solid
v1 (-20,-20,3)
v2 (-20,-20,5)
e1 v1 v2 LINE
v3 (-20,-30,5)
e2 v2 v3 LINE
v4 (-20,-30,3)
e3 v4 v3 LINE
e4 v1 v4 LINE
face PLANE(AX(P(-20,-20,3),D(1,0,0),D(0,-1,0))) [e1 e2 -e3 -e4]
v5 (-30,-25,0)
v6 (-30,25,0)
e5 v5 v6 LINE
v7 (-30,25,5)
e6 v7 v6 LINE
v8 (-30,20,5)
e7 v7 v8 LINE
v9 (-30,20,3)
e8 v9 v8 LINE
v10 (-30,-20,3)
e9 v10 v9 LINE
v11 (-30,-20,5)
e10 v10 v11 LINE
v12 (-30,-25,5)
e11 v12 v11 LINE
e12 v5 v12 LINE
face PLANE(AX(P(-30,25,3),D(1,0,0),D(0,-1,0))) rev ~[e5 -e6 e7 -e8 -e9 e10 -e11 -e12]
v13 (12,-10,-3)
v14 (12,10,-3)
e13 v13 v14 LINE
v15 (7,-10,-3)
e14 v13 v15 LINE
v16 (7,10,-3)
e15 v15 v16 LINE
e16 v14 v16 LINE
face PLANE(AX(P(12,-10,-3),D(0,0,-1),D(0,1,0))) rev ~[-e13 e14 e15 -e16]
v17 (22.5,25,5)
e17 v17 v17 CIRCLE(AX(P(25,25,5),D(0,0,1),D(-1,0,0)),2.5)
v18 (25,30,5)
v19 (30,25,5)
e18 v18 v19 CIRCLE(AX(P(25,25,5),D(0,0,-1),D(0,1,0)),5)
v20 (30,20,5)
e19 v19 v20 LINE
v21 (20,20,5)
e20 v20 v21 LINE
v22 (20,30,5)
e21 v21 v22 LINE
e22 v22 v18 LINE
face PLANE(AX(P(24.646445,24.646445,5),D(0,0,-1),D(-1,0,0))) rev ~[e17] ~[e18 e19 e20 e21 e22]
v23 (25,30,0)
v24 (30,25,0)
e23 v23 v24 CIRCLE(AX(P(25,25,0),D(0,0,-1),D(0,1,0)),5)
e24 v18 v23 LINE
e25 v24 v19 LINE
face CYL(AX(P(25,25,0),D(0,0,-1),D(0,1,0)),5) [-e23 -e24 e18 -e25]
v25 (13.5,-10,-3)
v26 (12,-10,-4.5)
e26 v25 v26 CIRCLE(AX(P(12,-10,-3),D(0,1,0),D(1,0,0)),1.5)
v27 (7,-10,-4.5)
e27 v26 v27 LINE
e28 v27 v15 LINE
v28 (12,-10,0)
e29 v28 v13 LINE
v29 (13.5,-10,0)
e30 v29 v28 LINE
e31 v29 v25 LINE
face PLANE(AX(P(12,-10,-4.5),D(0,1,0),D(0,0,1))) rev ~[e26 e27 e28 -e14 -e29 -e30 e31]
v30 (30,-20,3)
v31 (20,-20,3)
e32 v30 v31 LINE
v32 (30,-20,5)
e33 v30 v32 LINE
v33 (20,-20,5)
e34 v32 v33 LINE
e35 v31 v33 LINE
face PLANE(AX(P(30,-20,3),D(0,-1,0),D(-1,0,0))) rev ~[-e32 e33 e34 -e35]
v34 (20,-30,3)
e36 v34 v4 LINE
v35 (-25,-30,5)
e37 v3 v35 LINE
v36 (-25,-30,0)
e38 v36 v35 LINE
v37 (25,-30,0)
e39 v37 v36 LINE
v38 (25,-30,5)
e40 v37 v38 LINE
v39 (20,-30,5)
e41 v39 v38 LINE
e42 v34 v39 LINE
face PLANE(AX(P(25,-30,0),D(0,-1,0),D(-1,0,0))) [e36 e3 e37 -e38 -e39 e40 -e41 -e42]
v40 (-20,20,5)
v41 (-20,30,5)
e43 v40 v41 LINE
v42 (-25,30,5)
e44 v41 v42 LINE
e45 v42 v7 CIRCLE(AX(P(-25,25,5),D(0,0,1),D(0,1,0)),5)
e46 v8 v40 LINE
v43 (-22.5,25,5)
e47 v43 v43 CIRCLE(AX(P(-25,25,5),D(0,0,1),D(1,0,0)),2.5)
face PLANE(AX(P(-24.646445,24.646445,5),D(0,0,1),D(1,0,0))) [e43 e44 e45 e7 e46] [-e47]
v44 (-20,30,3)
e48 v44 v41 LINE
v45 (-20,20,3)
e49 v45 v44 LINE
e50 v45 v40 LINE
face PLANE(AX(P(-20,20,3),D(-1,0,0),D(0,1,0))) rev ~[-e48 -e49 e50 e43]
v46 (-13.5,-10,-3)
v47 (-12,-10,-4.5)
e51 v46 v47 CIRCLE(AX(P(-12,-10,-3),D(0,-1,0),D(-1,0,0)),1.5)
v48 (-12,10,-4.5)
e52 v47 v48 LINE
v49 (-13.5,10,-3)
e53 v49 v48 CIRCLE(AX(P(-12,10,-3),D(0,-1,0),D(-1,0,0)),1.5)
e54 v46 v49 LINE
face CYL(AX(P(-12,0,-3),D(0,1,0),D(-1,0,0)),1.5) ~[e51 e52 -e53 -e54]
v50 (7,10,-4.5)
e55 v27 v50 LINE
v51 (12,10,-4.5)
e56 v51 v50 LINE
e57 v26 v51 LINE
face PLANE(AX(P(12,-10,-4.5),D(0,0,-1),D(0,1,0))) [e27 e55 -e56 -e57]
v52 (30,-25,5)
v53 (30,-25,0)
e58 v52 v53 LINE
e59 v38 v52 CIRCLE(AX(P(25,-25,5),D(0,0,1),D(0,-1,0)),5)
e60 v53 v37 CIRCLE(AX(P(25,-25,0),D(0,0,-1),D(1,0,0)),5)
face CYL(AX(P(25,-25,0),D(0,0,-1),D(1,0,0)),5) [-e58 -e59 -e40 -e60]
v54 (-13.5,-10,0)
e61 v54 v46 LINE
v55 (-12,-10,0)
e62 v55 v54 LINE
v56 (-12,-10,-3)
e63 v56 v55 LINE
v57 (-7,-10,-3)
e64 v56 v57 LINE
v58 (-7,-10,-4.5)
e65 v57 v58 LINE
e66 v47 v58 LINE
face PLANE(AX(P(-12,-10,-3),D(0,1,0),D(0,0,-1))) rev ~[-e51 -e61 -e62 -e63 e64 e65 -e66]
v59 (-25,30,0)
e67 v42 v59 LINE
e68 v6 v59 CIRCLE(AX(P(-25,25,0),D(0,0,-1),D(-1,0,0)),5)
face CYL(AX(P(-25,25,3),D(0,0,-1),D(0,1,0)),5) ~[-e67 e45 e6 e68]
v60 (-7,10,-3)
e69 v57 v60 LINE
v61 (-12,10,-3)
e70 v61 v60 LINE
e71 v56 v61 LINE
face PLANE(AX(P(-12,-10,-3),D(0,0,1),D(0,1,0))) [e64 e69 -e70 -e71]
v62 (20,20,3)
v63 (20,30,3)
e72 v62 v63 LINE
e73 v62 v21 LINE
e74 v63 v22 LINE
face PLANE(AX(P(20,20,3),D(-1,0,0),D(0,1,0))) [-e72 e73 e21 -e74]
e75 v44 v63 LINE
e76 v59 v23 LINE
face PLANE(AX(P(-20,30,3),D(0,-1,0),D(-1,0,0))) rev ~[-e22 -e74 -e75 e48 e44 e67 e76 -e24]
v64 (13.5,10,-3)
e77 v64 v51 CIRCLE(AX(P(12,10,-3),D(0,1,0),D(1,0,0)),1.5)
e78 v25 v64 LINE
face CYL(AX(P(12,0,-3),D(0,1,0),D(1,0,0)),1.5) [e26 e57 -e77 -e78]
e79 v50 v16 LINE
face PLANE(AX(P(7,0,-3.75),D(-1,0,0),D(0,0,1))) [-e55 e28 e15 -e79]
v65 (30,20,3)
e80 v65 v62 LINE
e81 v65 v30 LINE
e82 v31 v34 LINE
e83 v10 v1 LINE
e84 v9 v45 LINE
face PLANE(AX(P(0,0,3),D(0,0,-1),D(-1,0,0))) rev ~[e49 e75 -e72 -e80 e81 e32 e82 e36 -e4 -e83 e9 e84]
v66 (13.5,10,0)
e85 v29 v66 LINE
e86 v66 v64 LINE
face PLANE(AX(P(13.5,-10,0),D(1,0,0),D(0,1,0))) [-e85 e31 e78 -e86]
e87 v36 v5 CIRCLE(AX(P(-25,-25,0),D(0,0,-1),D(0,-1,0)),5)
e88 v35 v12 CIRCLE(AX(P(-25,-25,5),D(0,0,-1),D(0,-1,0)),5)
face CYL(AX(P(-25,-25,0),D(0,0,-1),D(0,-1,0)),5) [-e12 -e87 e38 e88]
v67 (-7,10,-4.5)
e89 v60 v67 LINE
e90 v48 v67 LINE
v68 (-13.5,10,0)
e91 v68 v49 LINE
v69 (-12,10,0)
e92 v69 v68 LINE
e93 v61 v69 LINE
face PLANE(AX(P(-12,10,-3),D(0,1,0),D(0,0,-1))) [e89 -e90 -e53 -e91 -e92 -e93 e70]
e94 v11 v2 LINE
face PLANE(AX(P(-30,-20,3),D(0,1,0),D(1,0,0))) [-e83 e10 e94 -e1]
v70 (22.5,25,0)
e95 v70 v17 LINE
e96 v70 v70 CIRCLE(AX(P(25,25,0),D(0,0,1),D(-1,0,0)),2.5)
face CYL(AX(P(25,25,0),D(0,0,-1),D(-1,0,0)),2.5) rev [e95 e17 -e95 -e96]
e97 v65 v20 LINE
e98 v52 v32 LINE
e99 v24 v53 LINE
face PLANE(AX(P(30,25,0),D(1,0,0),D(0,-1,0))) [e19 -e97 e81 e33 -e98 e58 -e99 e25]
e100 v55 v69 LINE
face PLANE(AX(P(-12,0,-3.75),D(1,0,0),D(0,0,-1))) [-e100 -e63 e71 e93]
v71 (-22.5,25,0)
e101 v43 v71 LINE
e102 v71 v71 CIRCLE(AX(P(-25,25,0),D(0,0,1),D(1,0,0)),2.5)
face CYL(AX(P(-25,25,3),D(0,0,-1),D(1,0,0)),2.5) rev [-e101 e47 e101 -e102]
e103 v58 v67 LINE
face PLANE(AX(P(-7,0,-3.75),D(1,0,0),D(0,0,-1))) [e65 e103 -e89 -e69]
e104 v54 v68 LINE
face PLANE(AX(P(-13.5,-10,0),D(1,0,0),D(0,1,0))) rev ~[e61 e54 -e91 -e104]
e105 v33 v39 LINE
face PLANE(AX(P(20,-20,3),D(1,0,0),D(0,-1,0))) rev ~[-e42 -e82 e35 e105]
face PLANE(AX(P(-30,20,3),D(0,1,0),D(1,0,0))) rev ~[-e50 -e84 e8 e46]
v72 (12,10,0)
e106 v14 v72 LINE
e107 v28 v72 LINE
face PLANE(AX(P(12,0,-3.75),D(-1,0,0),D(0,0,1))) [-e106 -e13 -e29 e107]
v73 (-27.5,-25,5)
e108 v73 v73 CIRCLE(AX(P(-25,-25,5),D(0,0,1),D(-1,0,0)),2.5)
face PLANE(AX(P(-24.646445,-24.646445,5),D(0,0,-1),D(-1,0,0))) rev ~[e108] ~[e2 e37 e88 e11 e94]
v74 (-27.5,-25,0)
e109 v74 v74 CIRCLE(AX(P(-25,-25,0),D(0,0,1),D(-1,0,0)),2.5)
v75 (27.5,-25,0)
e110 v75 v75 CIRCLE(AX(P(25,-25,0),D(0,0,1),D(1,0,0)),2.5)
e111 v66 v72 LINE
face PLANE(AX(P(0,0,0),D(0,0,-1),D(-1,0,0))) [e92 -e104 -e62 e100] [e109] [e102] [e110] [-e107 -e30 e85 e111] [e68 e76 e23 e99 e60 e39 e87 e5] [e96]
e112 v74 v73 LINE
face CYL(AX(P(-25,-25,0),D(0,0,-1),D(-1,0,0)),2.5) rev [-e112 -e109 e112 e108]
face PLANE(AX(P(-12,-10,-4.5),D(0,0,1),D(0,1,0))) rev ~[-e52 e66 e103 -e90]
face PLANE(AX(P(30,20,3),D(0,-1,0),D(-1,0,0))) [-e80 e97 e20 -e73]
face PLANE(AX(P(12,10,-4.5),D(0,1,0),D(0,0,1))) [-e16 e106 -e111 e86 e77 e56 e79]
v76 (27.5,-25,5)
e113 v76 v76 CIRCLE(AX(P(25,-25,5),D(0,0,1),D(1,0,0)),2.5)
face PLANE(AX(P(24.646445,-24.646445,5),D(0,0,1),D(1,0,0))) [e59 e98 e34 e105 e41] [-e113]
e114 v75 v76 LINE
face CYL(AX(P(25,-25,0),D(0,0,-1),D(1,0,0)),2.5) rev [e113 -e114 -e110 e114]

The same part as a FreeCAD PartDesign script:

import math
import FreeCAD as App
import Part
import Sketcher
Q = App.Units.Quantity


def add_polygon(sketch, points):
    """Adds a closed chain of lines whose ends are joined by coincident constraints."""
    first, n = sketch.GeometryCount, len(points)
    for a, b in zip(points, points[1:] + points[:1]):
        sketch.addGeometry(Part.LineSegment(App.Vector(*a, 0), App.Vector(*b, 0)), False)
    for i in range(n):
        sketch.addConstraint(Sketcher.Constraint("Coincident", first + i, 2, first + (i + 1) % n, 1))

doc = App.newDocument("Part")
body = doc.addObject("PartDesign::Body", "Body")

sketch1 = doc.addObject("Sketcher::SketchObject", "Sketch")
body.addObject(sketch1)
sketch1.AttachmentSupport = (doc.XY_Plane, [""])
sketch1.MapMode = "FlatFace"
sketch1.addGeometry([
    Part.LineSegment(App.Vector(25, 30, 0), App.Vector(-25, 30, 0)),
    Part.ArcOfCircle(Part.Circle(App.Vector(-25, 25, 0), App.Vector(0, 0, 1), 5), math.radians(90), math.radians(180)),
    Part.LineSegment(App.Vector(-30, 25, 0), App.Vector(-30, -25, 0)),
    Part.ArcOfCircle(Part.Circle(App.Vector(-25, -25, 0), App.Vector(0, 0, 1), 5), math.radians(180), math.radians(270)),
    Part.LineSegment(App.Vector(-25, -30, 0), App.Vector(25, -30, 0)),
    Part.ArcOfCircle(Part.Circle(App.Vector(25, -25, 0), App.Vector(0, 0, 1), 5), math.radians(-90), math.radians(0)),
    Part.LineSegment(App.Vector(30, -25, 0), App.Vector(30, 25, 0)),
    Part.ArcOfCircle(Part.Circle(App.Vector(25, 25, 0), App.Vector(0, 0, 1), 5), math.radians(0), math.radians(90)),
    Part.Circle(App.Vector(25, -25, 0), App.Vector(0, 0, 1), 2.5),
    Part.Circle(App.Vector(-25, -25, 0), App.Vector(0, 0, 1), 2.5),
    Part.Circle(App.Vector(25, 25, 0), App.Vector(0, 0, 1), 2.5),
    Part.Circle(App.Vector(-25, 25, 0), App.Vector(0, 0, 1), 2.5),
], False)
sketch1.addConstraint([
    Sketcher.Constraint("Tangent", 0, 2, 1, 1),
    Sketcher.Constraint("Tangent", 1, 2, 2, 1),
    Sketcher.Constraint("Tangent", 2, 2, 3, 1),
    Sketcher.Constraint("Tangent", 3, 2, 4, 1),
    Sketcher.Constraint("Tangent", 4, 2, 5, 1),
    Sketcher.Constraint("Tangent", 5, 2, 6, 1),
    Sketcher.Constraint("Tangent", 6, 2, 7, 1),
    Sketcher.Constraint("Tangent", 7, 2, 0, 1),
    Sketcher.Constraint("Horizontal", 0),
    Sketcher.Constraint("Vertical", 2),
    Sketcher.Constraint("Horizontal", 4),
    Sketcher.Constraint("Vertical", 6),
    Sketcher.Constraint("Coincident", 8, 3, 5, 3),
    Sketcher.Constraint("Coincident", 9, 3, 3, 3),
    Sketcher.Constraint("Coincident", 10, 3, 7, 3),
    Sketcher.Constraint("Coincident", 11, 3, 1, 3),
    Sketcher.Constraint("Equal", 1, 3),
    Sketcher.Constraint("Equal", 3, 5),
    Sketcher.Constraint("Equal", 5, 7),
    Sketcher.Constraint("Equal", 8, 9),
    Sketcher.Constraint("Equal", 9, 10),
    Sketcher.Constraint("Equal", 10, 11),
    Sketcher.Constraint("Symmetric", 1, 3, 5, 3, -1, 1),
    Sketcher.Constraint("Equal", 4, 2),
    Sketcher.Constraint("Diameter", 8, Q("5 mm")),
    Sketcher.Constraint("Radius", 1, Q("5 mm")),
    Sketcher.Constraint("DistanceX", 0, 2, 0, 1, Q("50 mm")),
])
pad1 = doc.addObject("PartDesign::Pad", "Pad")
body.addObject(pad1)
pad1.Profile = sketch1
pad1.Length = 3

sketch2 = doc.addObject("Sketcher::SketchObject", "Sketch001")
body.addObject(sketch2)
sketch2.AttachmentSupport = (doc.XY_Plane, [""])
sketch2.MapMode = "FlatFace"
sketch2.AttachmentOffset = App.Placement(App.Vector(0, 0, 3), App.Rotation())
sketch2.addGeometry([
    Part.LineSegment(App.Vector(-30, 25, 0), App.Vector(-30, 20, 0)),
    Part.LineSegment(App.Vector(-30, 20, 0), App.Vector(-20, 20, 0)),
    Part.LineSegment(App.Vector(-20, 20, 0), App.Vector(-20, 30, 0)),
    Part.LineSegment(App.Vector(-20, 30, 0), App.Vector(-25, 30, 0)),
    Part.ArcOfCircle(Part.Circle(App.Vector(-25, 25, 0), App.Vector(0, 0, 1), 5), math.radians(90), math.radians(180)),
    Part.Circle(App.Vector(-25, 25, 0), App.Vector(0, 0, 1), 2.5),
    Part.LineSegment(App.Vector(25, 30, 0), App.Vector(20, 30, 0)),
    Part.LineSegment(App.Vector(20, 30, 0), App.Vector(20, 20, 0)),
    Part.LineSegment(App.Vector(20, 20, 0), App.Vector(30, 20, 0)),
    Part.LineSegment(App.Vector(30, 20, 0), App.Vector(30, 25, 0)),
    Part.ArcOfCircle(Part.Circle(App.Vector(25, 25, 0), App.Vector(0, 0, 1), 5), math.radians(0), math.radians(90)),
    Part.Circle(App.Vector(25, 25, 0), App.Vector(0, 0, 1), 2.5),
    Part.LineSegment(App.Vector(30, -25, 0), App.Vector(30, -20, 0)),
    Part.LineSegment(App.Vector(30, -20, 0), App.Vector(20, -20, 0)),
    Part.LineSegment(App.Vector(20, -20, 0), App.Vector(20, -30, 0)),
    Part.LineSegment(App.Vector(20, -30, 0), App.Vector(25, -30, 0)),
    Part.ArcOfCircle(Part.Circle(App.Vector(25, -25, 0), App.Vector(0, 0, 1), 5), math.radians(-90), math.radians(0)),
    Part.Circle(App.Vector(25, -25, 0), App.Vector(0, 0, 1), 2.5),
    Part.LineSegment(App.Vector(-25, -30, 0), App.Vector(-20, -30, 0)),
    Part.LineSegment(App.Vector(-20, -30, 0), App.Vector(-20, -20, 0)),
    Part.LineSegment(App.Vector(-20, -20, 0), App.Vector(-30, -20, 0)),
    Part.LineSegment(App.Vector(-30, -20, 0), App.Vector(-30, -25, 0)),
    Part.ArcOfCircle(Part.Circle(App.Vector(-25, -25, 0), App.Vector(0, 0, 1), 5), math.radians(180), math.radians(270)),
    Part.Circle(App.Vector(-25, -25, 0), App.Vector(0, 0, 1), 2.5),
], False)
sketch2.addConstraint([
    Sketcher.Constraint("Coincident", 0, 2, 1, 1),
    Sketcher.Constraint("Coincident", 1, 2, 2, 1),
    Sketcher.Constraint("Coincident", 2, 2, 3, 1),
    Sketcher.Constraint("Tangent", 3, 2, 4, 1),
    Sketcher.Constraint("Tangent", 4, 2, 0, 1),
    Sketcher.Constraint("Coincident", 6, 2, 7, 1),
    Sketcher.Constraint("Coincident", 7, 2, 8, 1),
    Sketcher.Constraint("Coincident", 8, 2, 9, 1),
    Sketcher.Constraint("Tangent", 9, 2, 10, 1),
    Sketcher.Constraint("Tangent", 10, 2, 6, 1),
    Sketcher.Constraint("Coincident", 12, 2, 13, 1),
    Sketcher.Constraint("Coincident", 13, 2, 14, 1),
    Sketcher.Constraint("Coincident", 14, 2, 15, 1),
    Sketcher.Constraint("Tangent", 15, 2, 16, 1),
    Sketcher.Constraint("Tangent", 16, 2, 12, 1),
    Sketcher.Constraint("Coincident", 18, 2, 19, 1),
    Sketcher.Constraint("Coincident", 19, 2, 20, 1),
    Sketcher.Constraint("Coincident", 20, 2, 21, 1),
    Sketcher.Constraint("Tangent", 21, 2, 22, 1),
    Sketcher.Constraint("Tangent", 22, 2, 18, 1),
    Sketcher.Constraint("Vertical", 0),
    Sketcher.Constraint("Horizontal", 1),
    Sketcher.Constraint("Vertical", 2),
    Sketcher.Constraint("Horizontal", 3),
    Sketcher.Constraint("Horizontal", 6),
    Sketcher.Constraint("Vertical", 7),
    Sketcher.Constraint("Horizontal", 8),
    Sketcher.Constraint("Vertical", 9),
    Sketcher.Constraint("Vertical", 12),
    Sketcher.Constraint("Horizontal", 13),
    Sketcher.Constraint("Vertical", 14),
    Sketcher.Constraint("Horizontal", 15),
    Sketcher.Constraint("Horizontal", 18),
    Sketcher.Constraint("Vertical", 19),
    Sketcher.Constraint("Horizontal", 20),
    Sketcher.Constraint("Vertical", 21),
    Sketcher.Constraint("Coincident", 5, 3, 4, 3),
    Sketcher.Constraint("Coincident", 11, 3, 10, 3),
    Sketcher.Constraint("Coincident", 17, 3, 16, 3),
    Sketcher.Constraint("Coincident", 23, 3, 22, 3),
    Sketcher.Constraint("Equal", 4, 10),
    Sketcher.Constraint("Equal", 5, 11),
    Sketcher.Constraint("Equal", 10, 16),
    Sketcher.Constraint("Equal", 11, 17),
    Sketcher.Constraint("Equal", 16, 22),
    Sketcher.Constraint("Equal", 17, 23),
    Sketcher.Constraint("Symmetric", 4, 3, 16, 3, -1, 1),
    Sketcher.Constraint("Symmetric", 10, 3, 22, 3, -1, 1),
    Sketcher.Constraint("Symmetric", 1, 2, 13, 2, -1, 1),
    Sketcher.Constraint("Symmetric", 7, 2, 19, 2, -1, 1),
    Sketcher.Constraint("Symmetric", 4, 3, 10, 3, -2),
    Sketcher.Constraint("Symmetric", 1, 2, 7, 2, -2),
    Sketcher.Constraint("Equal", 18, 0),
    Sketcher.Constraint("Diameter", 5, Q("5 mm")),
    Sketcher.Constraint("Radius", 4, Q("5 mm")),
    Sketcher.Constraint("DistanceX", 1, 1, 1, 2, Q("10 mm")),
    Sketcher.Constraint("DistanceX", 4, 3, -1, 1, Q("25 mm")),
    Sketcher.Constraint("DistanceY", -1, 1, 4, 3, Q("25 mm")),
])
pad2 = doc.addObject("PartDesign::Pad", "Pad001")
body.addObject(pad2)
pad2.Profile = sketch2
pad2.Length = 2

sketch3 = doc.addObject("Sketcher::SketchObject", "Sketch002")
body.addObject(sketch3)
sketch3.AttachmentSupport = (doc.XY_Plane, [""])
sketch3.MapMode = "FlatFace"
add_polygon(sketch3, [(13.5, 10), (13.5, -10), (12, -10), (12, 10)])
add_polygon(sketch3, [(-12, 10), (-12, -10), (-13.5, -10), (-13.5, 10)])
sketch3.addConstraint([
    Sketcher.Constraint("Vertical", 0),
    Sketcher.Constraint("Horizontal", 1),
    Sketcher.Constraint("Vertical", 2),
    Sketcher.Constraint("Horizontal", 3),
    Sketcher.Constraint("Vertical", 4),
    Sketcher.Constraint("Horizontal", 5),
    Sketcher.Constraint("Vertical", 6),
    Sketcher.Constraint("Horizontal", 7),
    Sketcher.Constraint("Symmetric", 2, 2, 4, 2, -1, 1),
    Sketcher.Constraint("Symmetric", 0, 2, 6, 2, -1, 1),
    Sketcher.Constraint("Horizontal", 1, 2, 4, 2),
    Sketcher.Constraint("DistanceY", 0, 2, 0, 1, Q("20 mm")),
    Sketcher.Constraint("DistanceX", 1, 2, 1, 1, Q("1.5 mm")),
    Sketcher.Constraint("DistanceX", -1, 1, 1, 2, Q("12 mm")),
])
pad3 = doc.addObject("PartDesign::Pad", "Pad002")
body.addObject(pad3)
pad3.Profile = sketch3
pad3.Length = 3
pad3.Reversed = True

sketch4 = doc.addObject("Sketcher::SketchObject", "Sketch003")
body.addObject(sketch4)
sketch4.AttachmentSupport = (doc.XY_Plane, [""])
sketch4.MapMode = "FlatFace"
sketch4.AttachmentOffset = App.Placement(App.Vector(0, 0, -3), App.Rotation())
add_polygon(sketch4, [(13.5, 10), (13.5, -10), (12, -10), (12, 10)])
sketch4.addGeometry(Part.LineSegment(App.Vector(12, -10, 0), App.Vector(12, 10, 0)), True)
sketch4.addConstraint([
    Sketcher.Constraint("Vertical", 0),
    Sketcher.Constraint("Horizontal", 1),
    Sketcher.Constraint("Vertical", 2),
    Sketcher.Constraint("Horizontal", 3),
    Sketcher.Constraint("Vertical", 4),
    Sketcher.Constraint("Coincident", 4, 1, 1, 2),
    Sketcher.Constraint("Horizontal", 3, 2, 4, 2),
    Sketcher.Constraint("DistanceY", 0, 2, 0, 1, Q("20 mm")),
    Sketcher.Constraint("DistanceX", 1, 2, 1, 1, Q("1.5 mm")),
    Sketcher.Constraint("DistanceY", 0, 2, -1, 1, Q("10 mm")),
    Sketcher.Constraint("DistanceX", -1, 1, 1, 2, Q("12 mm")),
])
revolution = doc.addObject("PartDesign::Revolution", "Revolution")
body.addObject(revolution)
revolution.Profile = sketch4
revolution.ReferenceAxis = (sketch4, ["Axis0"])
revolution.Angle = 90

sketch5 = doc.addObject("Sketcher::SketchObject", "Sketch004")
body.addObject(sketch5)
sketch5.AttachmentSupport = (doc.YZ_Plane, [""])
sketch5.MapMode = "FlatFace"
sketch5.AttachmentOffset = App.Placement(App.Vector(0, 0, 12), App.Rotation())
add_polygon(sketch5, [(10, -4.5), (-10, -4.5), (-10, -3), (10, -3)])
sketch5.addConstraint([
    Sketcher.Constraint("Horizontal", 0),
    Sketcher.Constraint("Vertical", 1),
    Sketcher.Constraint("Horizontal", 2),
    Sketcher.Constraint("Vertical", 3),
    Sketcher.Constraint("DistanceX", 0, 2, 0, 1, Q("20 mm")),
    Sketcher.Constraint("DistanceY", 1, 1, 1, 2, Q("1.5 mm")),
    Sketcher.Constraint("DistanceX", 0, 2, -1, 1, Q("10 mm")),
    Sketcher.Constraint("DistanceY", 1, 2, -1, 1, Q("3 mm")),
])
pad4 = doc.addObject("PartDesign::Pad", "Pad003")
body.addObject(pad4)
pad4.Profile = sketch5
pad4.Length = 5
pad4.Reversed = True

sketch6 = doc.addObject("Sketcher::SketchObject", "Sketch005")
body.addObject(sketch6)
sketch6.AttachmentSupport = (doc.XY_Plane, [""])
sketch6.MapMode = "FlatFace"
sketch6.AttachmentOffset = App.Placement(App.Vector(0, 0, -3), App.Rotation())
add_polygon(sketch6, [(-12, 10), (-12, -10), (-13.5, -10), (-13.5, 10)])
sketch6.addGeometry(Part.LineSegment(App.Vector(-12, 10, 0), App.Vector(-12, -10, 0)), True)
sketch6.addConstraint([
    Sketcher.Constraint("Vertical", 0),
    Sketcher.Constraint("Horizontal", 1),
    Sketcher.Constraint("Vertical", 2),
    Sketcher.Constraint("Horizontal", 3),
    Sketcher.Constraint("Vertical", 4),
    Sketcher.Constraint("Coincident", 4, 1, 3, 2),
    Sketcher.Constraint("Horizontal", 1, 2, 4, 2),
    Sketcher.Constraint("DistanceY", 0, 2, 0, 1, Q("20 mm")),
    Sketcher.Constraint("DistanceX", 1, 2, 1, 1, Q("1.5 mm")),
    Sketcher.Constraint("DistanceX", 0, 2, -1, 1, Q("12 mm")),
    Sketcher.Constraint("DistanceY", 0, 2, -1, 1, Q("10 mm")),
])
revolution2 = doc.addObject("PartDesign::Revolution", "Revolution001")
body.addObject(revolution2)
revolution2.Profile = sketch6
revolution2.ReferenceAxis = (sketch6, ["Axis0"])
revolution2.Angle = 90

sketch7 = doc.addObject("Sketcher::SketchObject", "Sketch006")
body.addObject(sketch7)
sketch7.AttachmentSupport = (doc.YZ_Plane, [""])
sketch7.MapMode = "FlatFace"
sketch7.AttachmentOffset = App.Placement(App.Vector(0, 0, -12), App.Rotation())
add_polygon(sketch7, [(10, -3), (-10, -3), (-10, -4.5), (10, -4.5)])
sketch7.addConstraint([
    Sketcher.Constraint("Horizontal", 0),
    Sketcher.Constraint("Vertical", 1),
    Sketcher.Constraint("Horizontal", 2),
    Sketcher.Constraint("Vertical", 3),
    Sketcher.Constraint("DistanceX", 0, 2, 0, 1, Q("20 mm")),
    Sketcher.Constraint("DistanceY", 1, 2, 1, 1, Q("1.5 mm")),
    Sketcher.Constraint("DistanceX", 0, 2, -1, 1, Q("10 mm")),
    Sketcher.Constraint("DistanceY", 0, 2, -1, 1, Q("3 mm")),
])
pad5 = doc.addObject("PartDesign::Pad", "Pad004")
body.addObject(pad5)
pad5.Profile = sketch7
pad5.Length = 5

doc.recompute()
